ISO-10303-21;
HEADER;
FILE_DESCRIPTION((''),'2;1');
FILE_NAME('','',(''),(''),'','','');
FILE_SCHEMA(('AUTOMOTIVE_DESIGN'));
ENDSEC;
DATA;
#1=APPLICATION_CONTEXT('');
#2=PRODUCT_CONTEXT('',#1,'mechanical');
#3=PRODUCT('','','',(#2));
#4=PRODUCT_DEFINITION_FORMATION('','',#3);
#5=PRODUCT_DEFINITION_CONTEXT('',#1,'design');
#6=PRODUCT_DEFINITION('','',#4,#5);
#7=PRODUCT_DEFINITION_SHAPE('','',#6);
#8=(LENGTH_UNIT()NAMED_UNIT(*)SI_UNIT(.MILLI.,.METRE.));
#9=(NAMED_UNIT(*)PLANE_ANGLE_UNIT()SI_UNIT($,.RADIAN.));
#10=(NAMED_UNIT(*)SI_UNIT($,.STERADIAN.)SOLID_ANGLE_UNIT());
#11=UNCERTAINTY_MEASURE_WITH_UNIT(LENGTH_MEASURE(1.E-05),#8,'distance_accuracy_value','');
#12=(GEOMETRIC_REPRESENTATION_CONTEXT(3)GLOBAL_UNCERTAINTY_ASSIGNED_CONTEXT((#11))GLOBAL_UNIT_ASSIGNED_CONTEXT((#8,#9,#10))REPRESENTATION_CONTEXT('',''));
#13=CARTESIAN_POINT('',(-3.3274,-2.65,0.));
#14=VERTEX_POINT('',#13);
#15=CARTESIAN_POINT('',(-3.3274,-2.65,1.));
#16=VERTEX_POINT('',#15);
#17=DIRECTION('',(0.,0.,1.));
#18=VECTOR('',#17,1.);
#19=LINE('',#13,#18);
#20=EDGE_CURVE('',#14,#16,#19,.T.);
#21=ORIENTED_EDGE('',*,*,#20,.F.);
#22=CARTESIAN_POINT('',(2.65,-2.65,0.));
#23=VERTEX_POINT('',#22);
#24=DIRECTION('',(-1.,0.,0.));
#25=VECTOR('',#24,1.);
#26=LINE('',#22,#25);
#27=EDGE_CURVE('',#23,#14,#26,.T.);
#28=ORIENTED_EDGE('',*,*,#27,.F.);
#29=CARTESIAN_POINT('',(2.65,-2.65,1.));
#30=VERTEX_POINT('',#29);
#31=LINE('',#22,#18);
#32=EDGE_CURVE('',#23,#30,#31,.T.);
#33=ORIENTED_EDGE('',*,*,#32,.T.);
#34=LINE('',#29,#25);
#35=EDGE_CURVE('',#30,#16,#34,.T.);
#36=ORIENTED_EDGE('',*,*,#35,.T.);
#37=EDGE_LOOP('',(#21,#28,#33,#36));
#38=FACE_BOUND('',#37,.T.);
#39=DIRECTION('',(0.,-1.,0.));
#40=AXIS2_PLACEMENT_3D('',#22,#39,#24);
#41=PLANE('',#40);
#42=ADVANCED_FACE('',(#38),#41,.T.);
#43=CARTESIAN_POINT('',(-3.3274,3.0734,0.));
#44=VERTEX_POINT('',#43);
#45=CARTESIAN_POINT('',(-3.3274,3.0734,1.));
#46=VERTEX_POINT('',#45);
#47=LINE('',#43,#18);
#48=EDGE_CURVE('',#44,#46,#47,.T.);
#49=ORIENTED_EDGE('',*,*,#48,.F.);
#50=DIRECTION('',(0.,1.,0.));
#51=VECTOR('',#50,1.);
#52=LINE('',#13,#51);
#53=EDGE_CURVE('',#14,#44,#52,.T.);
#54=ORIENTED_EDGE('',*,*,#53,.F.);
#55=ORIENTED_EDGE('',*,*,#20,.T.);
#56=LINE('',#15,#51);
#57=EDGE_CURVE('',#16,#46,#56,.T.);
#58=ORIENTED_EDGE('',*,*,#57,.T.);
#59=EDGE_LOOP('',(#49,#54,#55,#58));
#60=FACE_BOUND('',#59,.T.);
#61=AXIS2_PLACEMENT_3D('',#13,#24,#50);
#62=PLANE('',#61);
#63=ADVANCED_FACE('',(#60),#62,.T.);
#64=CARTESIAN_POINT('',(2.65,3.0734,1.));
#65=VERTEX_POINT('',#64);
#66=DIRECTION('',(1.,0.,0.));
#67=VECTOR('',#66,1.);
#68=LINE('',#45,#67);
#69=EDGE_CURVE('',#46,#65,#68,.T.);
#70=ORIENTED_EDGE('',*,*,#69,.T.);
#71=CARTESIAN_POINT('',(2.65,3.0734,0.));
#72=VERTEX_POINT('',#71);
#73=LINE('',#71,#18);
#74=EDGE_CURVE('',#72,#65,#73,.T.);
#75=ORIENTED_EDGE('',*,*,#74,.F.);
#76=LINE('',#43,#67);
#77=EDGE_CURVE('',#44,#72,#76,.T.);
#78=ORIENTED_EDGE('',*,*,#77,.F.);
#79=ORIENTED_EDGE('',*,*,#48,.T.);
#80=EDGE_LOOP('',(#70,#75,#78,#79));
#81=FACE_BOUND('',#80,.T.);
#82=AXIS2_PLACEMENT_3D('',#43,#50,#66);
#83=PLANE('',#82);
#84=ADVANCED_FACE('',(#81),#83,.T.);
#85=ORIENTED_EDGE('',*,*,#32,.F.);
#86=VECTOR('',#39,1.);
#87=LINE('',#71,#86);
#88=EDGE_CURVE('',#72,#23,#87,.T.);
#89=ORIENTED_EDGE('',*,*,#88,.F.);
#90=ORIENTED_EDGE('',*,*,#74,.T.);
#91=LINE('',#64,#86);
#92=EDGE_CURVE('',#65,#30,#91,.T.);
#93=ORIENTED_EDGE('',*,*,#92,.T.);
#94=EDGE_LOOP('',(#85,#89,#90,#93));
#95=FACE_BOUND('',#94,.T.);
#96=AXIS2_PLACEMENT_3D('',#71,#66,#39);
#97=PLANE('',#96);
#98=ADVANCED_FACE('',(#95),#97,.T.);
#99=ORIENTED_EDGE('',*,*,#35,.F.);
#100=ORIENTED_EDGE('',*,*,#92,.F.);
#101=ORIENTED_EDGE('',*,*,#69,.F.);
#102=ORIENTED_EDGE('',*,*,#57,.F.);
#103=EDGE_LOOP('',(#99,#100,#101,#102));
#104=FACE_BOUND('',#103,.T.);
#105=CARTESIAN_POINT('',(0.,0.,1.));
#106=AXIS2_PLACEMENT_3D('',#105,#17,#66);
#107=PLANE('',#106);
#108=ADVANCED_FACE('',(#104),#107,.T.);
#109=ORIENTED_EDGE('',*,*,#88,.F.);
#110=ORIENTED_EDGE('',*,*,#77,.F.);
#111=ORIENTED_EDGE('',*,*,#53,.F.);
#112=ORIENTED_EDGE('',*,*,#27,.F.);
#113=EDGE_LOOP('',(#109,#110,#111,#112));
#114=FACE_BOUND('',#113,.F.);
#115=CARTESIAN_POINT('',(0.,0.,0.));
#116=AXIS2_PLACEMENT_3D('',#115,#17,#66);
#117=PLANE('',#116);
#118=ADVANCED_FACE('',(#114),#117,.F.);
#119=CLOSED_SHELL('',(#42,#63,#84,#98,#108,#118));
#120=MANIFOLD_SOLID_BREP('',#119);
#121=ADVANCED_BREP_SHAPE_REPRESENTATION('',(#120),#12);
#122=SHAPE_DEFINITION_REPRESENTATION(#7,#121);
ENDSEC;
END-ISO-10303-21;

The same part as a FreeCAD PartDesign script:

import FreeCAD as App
import Part
import Sketcher

doc = App.newDocument("Part")
body = doc.addObject("PartDesign::Body", "Body")

# Sketch on XY plane
sketch1 = body.newObject("Sketcher::SketchObject", "Sketch")
sketch1.AttachmentSupport = (doc.getObject("XY_Plane"), [""])
sketch1.MapMode = "FlatFace"
sketch1.addGeometry([
    Part.LineSegment(App.Vector(3, 3, 0), App.Vector(-3, 3, 0)),
    Part.LineSegment(App.Vector(-3, 3, 0), App.Vector(-3, -3, 0)),
    Part.LineSegment(App.Vector(-3, -3, 0), App.Vector(3, -3, 0)),
    Part.LineSegment(App.Vector(3, -3, 0), App.Vector(3, 3, 0)),
], False)
sketch1.addConstraint([
    Sketcher.Constraint("Coincident", 0, 2, 1, 1),
    Sketcher.Constraint("Coincident", 1, 2, 2, 1),
    Sketcher.Constraint("Coincident", 2, 2, 3, 1),
    Sketcher.Constraint("Coincident", 3, 2, 0, 1),
    Sketcher.Constraint("Horizontal", 0),
    Sketcher.Constraint("Vertical", 1),
    Sketcher.Constraint("Horizontal", 2),
    Sketcher.Constraint("Vertical", 3),
    Sketcher.Constraint("DistanceY", 1, 2, -1, 1, 2.65),
    Sketcher.Constraint("DistanceX", -1, 1, 2, 2, 2.65),
    Sketcher.Constraint("DistanceX", 0, 2, 0, 1, 5.9774),
    Sketcher.Constraint("DistanceY", 1, 2, 1, 1, 5.7234),
])
pad1 = body.newObject("PartDesign::Pad", "Pad")
pad1.Profile = sketch1
pad1.Length = 1

doc.recompute()
